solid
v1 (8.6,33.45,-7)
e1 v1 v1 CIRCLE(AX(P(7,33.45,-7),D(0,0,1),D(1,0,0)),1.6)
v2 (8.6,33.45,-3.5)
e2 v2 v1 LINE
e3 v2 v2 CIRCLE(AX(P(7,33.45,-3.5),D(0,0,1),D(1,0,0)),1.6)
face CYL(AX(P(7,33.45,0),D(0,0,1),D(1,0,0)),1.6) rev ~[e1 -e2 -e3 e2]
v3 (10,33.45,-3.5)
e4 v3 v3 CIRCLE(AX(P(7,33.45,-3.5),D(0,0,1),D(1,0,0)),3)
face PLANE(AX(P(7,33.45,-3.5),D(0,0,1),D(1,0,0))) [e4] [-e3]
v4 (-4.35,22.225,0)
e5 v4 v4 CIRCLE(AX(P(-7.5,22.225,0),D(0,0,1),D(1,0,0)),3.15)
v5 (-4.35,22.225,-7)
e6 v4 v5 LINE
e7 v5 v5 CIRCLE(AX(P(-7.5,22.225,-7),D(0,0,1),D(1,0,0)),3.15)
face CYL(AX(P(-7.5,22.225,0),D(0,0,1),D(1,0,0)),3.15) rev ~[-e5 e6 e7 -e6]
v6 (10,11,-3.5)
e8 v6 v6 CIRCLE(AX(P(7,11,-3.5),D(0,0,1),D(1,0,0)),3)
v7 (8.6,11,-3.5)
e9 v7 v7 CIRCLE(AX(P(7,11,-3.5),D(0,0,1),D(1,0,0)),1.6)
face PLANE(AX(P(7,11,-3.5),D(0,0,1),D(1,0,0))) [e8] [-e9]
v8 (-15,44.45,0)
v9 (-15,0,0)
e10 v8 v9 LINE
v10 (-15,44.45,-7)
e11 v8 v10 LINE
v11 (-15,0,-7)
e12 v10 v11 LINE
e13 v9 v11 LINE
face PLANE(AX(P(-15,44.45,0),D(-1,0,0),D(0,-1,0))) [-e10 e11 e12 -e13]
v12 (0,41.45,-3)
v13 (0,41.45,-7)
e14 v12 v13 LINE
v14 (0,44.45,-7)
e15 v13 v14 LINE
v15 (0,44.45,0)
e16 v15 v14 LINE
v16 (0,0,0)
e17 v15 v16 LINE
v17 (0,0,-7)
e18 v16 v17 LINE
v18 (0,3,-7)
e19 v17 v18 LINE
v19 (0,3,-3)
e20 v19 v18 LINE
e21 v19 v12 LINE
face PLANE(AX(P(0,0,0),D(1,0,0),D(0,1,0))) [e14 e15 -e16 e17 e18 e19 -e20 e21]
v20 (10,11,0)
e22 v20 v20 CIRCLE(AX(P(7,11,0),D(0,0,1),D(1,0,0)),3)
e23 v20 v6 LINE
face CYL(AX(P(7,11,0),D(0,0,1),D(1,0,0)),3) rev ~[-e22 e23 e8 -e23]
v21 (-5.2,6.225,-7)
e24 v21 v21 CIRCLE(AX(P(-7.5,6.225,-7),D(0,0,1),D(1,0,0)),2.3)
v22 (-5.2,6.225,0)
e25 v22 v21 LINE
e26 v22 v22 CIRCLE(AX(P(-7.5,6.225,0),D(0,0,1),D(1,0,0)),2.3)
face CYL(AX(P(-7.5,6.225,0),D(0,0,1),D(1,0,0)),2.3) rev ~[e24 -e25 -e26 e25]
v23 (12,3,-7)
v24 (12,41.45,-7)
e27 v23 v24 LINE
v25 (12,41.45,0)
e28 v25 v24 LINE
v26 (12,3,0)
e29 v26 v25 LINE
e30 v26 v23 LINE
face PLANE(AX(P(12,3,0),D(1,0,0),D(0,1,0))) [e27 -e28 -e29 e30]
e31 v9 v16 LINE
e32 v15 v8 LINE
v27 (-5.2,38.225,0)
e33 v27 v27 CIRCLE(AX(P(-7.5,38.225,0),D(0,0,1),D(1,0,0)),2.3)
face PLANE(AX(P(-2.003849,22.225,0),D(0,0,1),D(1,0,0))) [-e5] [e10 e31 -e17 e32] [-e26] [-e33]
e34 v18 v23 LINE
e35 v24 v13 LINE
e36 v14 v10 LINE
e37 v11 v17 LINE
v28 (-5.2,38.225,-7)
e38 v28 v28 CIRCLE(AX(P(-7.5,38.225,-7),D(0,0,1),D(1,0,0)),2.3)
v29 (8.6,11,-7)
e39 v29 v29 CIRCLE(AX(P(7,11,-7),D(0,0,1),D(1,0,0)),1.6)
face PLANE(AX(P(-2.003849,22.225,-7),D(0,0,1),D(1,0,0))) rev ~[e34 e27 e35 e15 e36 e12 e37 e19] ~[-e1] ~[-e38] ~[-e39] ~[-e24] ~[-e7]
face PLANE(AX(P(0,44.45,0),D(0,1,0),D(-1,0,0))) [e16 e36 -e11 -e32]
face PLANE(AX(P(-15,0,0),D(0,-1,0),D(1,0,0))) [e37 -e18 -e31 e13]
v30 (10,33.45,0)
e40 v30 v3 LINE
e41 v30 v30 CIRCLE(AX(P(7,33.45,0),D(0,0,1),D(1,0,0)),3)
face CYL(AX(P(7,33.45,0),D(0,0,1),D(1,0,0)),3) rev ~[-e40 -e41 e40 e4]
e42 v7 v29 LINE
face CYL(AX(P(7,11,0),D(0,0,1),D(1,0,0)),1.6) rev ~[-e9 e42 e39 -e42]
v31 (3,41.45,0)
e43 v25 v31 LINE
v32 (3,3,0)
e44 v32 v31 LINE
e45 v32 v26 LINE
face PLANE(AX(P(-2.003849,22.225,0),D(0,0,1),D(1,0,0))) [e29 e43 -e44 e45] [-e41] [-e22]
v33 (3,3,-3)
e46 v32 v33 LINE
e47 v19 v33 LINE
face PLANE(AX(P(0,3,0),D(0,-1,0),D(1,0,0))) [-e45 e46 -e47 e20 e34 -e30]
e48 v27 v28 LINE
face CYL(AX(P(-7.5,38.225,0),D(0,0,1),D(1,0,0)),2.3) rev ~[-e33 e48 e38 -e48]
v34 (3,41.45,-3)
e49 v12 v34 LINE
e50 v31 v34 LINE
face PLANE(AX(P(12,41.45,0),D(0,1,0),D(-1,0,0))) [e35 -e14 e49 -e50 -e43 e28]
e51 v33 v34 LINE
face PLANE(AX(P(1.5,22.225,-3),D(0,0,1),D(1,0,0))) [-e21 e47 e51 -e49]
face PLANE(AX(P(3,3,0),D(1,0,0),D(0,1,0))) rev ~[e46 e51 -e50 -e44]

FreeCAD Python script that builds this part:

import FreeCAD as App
import Part
import Sketcher
Q = App.Units.Quantity


def add_polygon(sketch, points):
    """Adds a closed chain of lines whose ends are joined by coincident constraints."""
    first, n = sketch.GeometryCount, len(points)
    for a, b in zip(points, points[1:] + points[:1]):
        sketch.addGeometry(Part.LineSegment(App.Vector(*a, 0), App.Vector(*b, 0)), False)
    for i in range(n):
        sketch.addConstraint(Sketcher.Constraint("Coincident", first + i, 2, first + (i + 1) % n, 1))

doc = App.newDocument("Part")
body = doc.addObject("PartDesign::Body", "Body")

sketch1 = body.newObject("Sketcher::SketchObject", "Sketch")
sketch1.AttachmentSupport = (doc.getObject("XY_Plane"), [""])
sketch1.MapMode = "FlatFace"
add_polygon(sketch1, [(-15, 0), (0, 0), (0, 3), (12, 3), (12, 41.5), (0, 41.5), (0, 44.5), (-15, 44.5)])
sketch1.addConstraint([
    Sketcher.Constraint("Horizontal", 0),
    Sketcher.Constraint("Vertical", 1),
    Sketcher.Constraint("Horizontal", 2),
    Sketcher.Constraint("Vertical", 3),
    Sketcher.Constraint("Horizontal", 4),
    Sketcher.Constraint("Vertical", 5),
    Sketcher.Constraint("Horizontal", 6),
    Sketcher.Constraint("Vertical", 7),
    Sketcher.Constraint("Coincident", 0, 2, -1, 1),
    Sketcher.Constraint("PointOnObject", 4, 2, -2),
    Sketcher.Constraint("Equal", 1, 5),
    Sketcher.Constraint("DistanceX", 0, 1, 0, 2, Q("15 mm")),
    Sketcher.Constraint("DistanceX", 2, 1, 2, 2, Q("12 mm")),
    Sketcher.Constraint("DistanceY", 1, 1, 1, 2, Q("3 mm")),
    Sketcher.Constraint("DistanceY", 3, 1, 3, 2, Q("38.45 mm")),
])
pad1 = body.newObject("PartDesign::Pad", "Pad")
pad1.Profile = sketch1
pad1.Length = 7
pad1.Reversed = True

sketch2 = body.newObject("Sketcher::SketchObject", "Sketch001")
sketch2.AttachmentSupport = (doc.getObject("XY_Plane"), [""])
sketch2.MapMode = "FlatFace"
add_polygon(sketch2, [(0, 41.5), (0, 3), (3, 3), (3, 41.5)])
sketch2.addConstraint([
    Sketcher.Constraint("Vertical", 0),
    Sketcher.Constraint("Horizontal", 1),
    Sketcher.Constraint("Vertical", 2),
    Sketcher.Constraint("Horizontal", 3),
    Sketcher.Constraint("PointOnObject", 0, 2, -2),
    Sketcher.Constraint("DistanceX", 1, 1, 1, 2, Q("3 mm")),
    Sketcher.Constraint("DistanceY", -1, 1, 0, 2, Q("3 mm")),
    Sketcher.Constraint("DistanceY", 0, 2, 0, 1, Q("38.45 mm")),
])
pocket1 = body.newObject("PartDesign::Pocket", "Pocket")
pocket1.Profile = sketch2
pocket1.Length = 3

sketch3 = body.newObject("Sketcher::SketchObject", "Sketch002")
sketch3.AttachmentSupport = (doc.getObject("XY_Plane"), [""])
sketch3.MapMode = "FlatFace"
sketch3.addGeometry([
    Part.Circle(App.Vector(-7.5, 6.2, 0), App.Vector(0, 0, 1), 2.3),
    Part.Circle(App.Vector(-7.5, 22.2, 0), App.Vector(0, 0, 1), 3.1),
    Part.Circle(App.Vector(-7.5, 38.2, 0), App.Vector(0, 0, 1), 2.3),
], False)
sketch3.addConstraint([
    Sketcher.Constraint("Equal", 0, 2),
    Sketcher.Constraint("Vertical", 0, 3, 1, 3),
    Sketcher.Constraint("Vertical", 1, 3, 2, 3),
    Sketcher.Constraint("Diameter", 0, Q("4.6 mm")),
    Sketcher.Constraint("Diameter", 1, Q("6.3 mm")),
    Sketcher.Constraint("DistanceY", 0, 3, 1, 3, Q("16 mm")),
    Sketcher.Constraint("DistanceY", 1, 3, 2, 3, Q("16 mm")),
    Sketcher.Constraint("DistanceX", 0, 3, -1, 1, Q("7.5 mm")),
    Sketcher.Constraint("DistanceY", -1, 1, 0, 3, Q("6.225 mm")),
])
pocket2 = body.newObject("PartDesign::Pocket", "Pocket001")
pocket2.Profile = sketch3
pocket2.Type = "ThroughAll"

sketch4 = body.newObject("Sketcher::SketchObject", "Sketch003")
sketch4.AttachmentSupport = (doc.getObject("XY_Plane"), [""])
sketch4.MapMode = "FlatFace"
sketch4.addGeometry([
    Part.Circle(App.Vector(7, 11, 0), App.Vector(0, 0, 1), 1.6),
    Part.Circle(App.Vector(7, 33.5, 0), App.Vector(0, 0, 1), 1.6),
], False)
sketch4.addConstraint([
    Sketcher.Constraint("Equal", 0, 1),
    Sketcher.Constraint("Vertical", 0, 3, 1, 3),
    Sketcher.Constraint("Diameter", 0, Q("3.2 mm")),
    Sketcher.Constraint("DistanceX", -1, 1, 0, 3, Q("7 mm")),
    Sketcher.Constraint("DistanceY", -1, 1, 0, 3, Q("11 mm")),
    Sketcher.Constraint("DistanceY", -1, 1, 1, 3, Q("33.45 mm")),
])
pocket3 = body.newObject("PartDesign::Pocket", "Pocket002")
pocket3.Profile = sketch4
pocket3.Type = "ThroughAll"

sketch5 = body.newObject("Sketcher::SketchObject", "Sketch004")
sketch5.AttachmentSupport = (doc.getObject("XY_Plane"), [""])
sketch5.MapMode = "FlatFace"
sketch5.addGeometry([
    Part.Circle(App.Vector(7, 11, 0), App.Vector(0, 0, 1), 3),
    Part.Circle(App.Vector(7, 33.5, 0), App.Vector(0, 0, 1), 3),
], False)
sketch5.addConstraint([
    Sketcher.Constraint("Equal", 0, 1),
    Sketcher.Constraint("Vertical", 0, 3, 1, 3),
    Sketcher.Constraint("Diameter", 0, Q("6 mm")),
    Sketcher.Constraint("DistanceX", -1, 1, 0, 3, Q("7 mm")),
    Sketcher.Constraint("DistanceY", -1, 1, 0, 3, Q("11 mm")),
    Sketcher.Constraint("DistanceY", -1, 1, 1, 3, Q("33.45 mm")),
])
pocket4 = body.newObject("PartDesign::Pocket", "Pocket003")
pocket4.Profile = sketch5
pocket4.Length = 3.5

doc.recompute()
